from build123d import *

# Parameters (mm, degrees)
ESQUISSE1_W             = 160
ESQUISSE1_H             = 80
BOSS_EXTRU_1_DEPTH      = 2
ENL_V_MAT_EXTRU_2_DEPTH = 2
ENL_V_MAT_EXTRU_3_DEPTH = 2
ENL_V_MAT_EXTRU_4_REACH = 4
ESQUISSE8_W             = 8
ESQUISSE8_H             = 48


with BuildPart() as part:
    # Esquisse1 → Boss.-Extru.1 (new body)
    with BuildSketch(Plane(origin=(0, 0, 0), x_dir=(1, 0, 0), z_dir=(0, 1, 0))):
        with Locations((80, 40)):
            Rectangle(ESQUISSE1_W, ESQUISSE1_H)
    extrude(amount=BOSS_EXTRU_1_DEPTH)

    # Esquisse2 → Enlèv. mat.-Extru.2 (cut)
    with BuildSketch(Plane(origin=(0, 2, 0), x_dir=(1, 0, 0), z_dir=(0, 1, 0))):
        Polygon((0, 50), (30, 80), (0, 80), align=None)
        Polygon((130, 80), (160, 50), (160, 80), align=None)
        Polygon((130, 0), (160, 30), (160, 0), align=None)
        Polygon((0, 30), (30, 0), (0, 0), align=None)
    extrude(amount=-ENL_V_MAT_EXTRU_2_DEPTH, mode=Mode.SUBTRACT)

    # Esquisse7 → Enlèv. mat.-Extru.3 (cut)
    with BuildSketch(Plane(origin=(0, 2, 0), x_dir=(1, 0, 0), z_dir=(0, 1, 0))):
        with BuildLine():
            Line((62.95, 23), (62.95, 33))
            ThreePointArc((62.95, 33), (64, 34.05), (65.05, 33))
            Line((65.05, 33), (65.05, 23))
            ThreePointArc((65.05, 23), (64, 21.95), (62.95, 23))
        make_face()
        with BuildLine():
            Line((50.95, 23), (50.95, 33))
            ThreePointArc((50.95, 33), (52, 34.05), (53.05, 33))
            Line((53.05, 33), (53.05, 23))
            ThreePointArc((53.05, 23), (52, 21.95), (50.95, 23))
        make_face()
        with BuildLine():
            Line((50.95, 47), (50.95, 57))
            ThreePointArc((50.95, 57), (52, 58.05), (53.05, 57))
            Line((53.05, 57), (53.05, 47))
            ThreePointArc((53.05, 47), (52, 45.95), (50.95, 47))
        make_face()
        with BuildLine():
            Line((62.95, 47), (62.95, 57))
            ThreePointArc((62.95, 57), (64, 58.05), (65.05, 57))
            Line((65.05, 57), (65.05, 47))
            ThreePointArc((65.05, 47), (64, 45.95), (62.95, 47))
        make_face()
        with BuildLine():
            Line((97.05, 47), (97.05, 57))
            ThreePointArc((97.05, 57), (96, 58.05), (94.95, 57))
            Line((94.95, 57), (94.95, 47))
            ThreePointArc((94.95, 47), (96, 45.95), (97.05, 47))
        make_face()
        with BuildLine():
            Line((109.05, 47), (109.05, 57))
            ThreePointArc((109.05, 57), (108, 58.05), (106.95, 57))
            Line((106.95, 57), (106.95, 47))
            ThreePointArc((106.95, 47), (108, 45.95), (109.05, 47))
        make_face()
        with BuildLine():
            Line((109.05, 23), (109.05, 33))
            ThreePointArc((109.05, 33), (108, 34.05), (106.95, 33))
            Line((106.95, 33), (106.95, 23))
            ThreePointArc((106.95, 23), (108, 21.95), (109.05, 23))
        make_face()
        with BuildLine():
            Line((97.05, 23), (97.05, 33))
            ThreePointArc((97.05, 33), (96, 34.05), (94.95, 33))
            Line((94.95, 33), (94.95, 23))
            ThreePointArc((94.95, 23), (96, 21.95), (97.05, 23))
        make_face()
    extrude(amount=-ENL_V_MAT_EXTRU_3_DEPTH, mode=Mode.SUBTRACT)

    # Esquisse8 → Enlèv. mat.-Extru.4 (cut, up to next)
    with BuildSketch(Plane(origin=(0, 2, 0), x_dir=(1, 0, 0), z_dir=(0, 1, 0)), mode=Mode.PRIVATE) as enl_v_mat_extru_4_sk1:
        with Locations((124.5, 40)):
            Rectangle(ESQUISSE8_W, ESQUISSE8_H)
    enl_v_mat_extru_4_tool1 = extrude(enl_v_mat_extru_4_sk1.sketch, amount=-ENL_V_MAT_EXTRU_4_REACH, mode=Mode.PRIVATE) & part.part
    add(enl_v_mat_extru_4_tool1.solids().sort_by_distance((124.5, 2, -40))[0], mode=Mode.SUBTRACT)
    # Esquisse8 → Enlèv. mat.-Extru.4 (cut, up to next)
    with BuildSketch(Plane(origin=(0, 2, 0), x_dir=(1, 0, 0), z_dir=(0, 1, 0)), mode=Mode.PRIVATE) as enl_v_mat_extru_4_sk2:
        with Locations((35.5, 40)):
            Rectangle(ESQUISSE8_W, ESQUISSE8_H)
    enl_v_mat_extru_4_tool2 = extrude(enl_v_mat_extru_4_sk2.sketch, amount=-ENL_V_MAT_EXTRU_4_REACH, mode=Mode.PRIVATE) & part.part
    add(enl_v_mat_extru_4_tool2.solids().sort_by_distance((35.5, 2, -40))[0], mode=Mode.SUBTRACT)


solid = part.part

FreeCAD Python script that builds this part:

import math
import FreeCAD as App
import Part
import Sketcher

V = App.Vector
Q = App.Units.Quantity

doc = App.newDocument("Part")
body = doc.addObject("PartDesign::Body", "Body")

sketch1 = body.newObject("Sketcher::SketchObject", "Sketch")
sketch1.AttachmentSupport = (doc.getObject("XZ_Plane"), [""])
sketch1.MapMode = "FlatFace"
sketch1.addGeometry(Part.LineSegment(V(0, -80, 0), V(0, 0, 0)), False)
sketch1.addGeometry(Part.LineSegment(V(0, 0, 0), V(160, 0, 0)), False)
sketch1.addGeometry(Part.LineSegment(V(160, 0, 0), V(160, -80, 0)), False)
sketch1.addGeometry(Part.LineSegment(V(160, -80, 0), V(0, -80, 0)), False)
sketch1.addConstraint(Sketcher.Constraint("Coincident", 0, 2, 1, 1))
sketch1.addConstraint(Sketcher.Constraint("Coincident", 1, 2, 2, 1))
sketch1.addConstraint(Sketcher.Constraint("Coincident", 2, 2, 3, 1))
sketch1.addConstraint(Sketcher.Constraint("Coincident", 3, 2, 0, 1))
sketch1.addConstraint(Sketcher.Constraint("Vertical", 0))
sketch1.addConstraint(Sketcher.Constraint("Horizontal", 1))
sketch1.addConstraint(Sketcher.Constraint("Vertical", 2))
sketch1.addConstraint(Sketcher.Constraint("Horizontal", 3))
sketch1.addConstraint(Sketcher.Constraint("Coincident", 0, 2, -1, 1))
sketch1.addConstraint(Sketcher.Constraint("DistanceX", 1, 1, 1, 2, Q("160 mm")))
sketch1.addConstraint(Sketcher.Constraint("DistanceY", 0, 1, 0, 2, Q("80 mm")))
pad1 = body.newObject("PartDesign::Pad", "Pad")
pad1.Profile = sketch1
pad1.Length = 2
pad1.Reversed = True

sketch2 = body.newObject("Sketcher::SketchObject", "Sketch001")
sketch2.AttachmentSupport = (doc.getObject("XZ_Plane"), [""])
sketch2.MapMode = "FlatFace"
sketch2.AttachmentOffset = App.Placement(V(0, 0, -2), App.Rotation())
sketch2.addGeometry(Part.LineSegment(V(0, -50, 0), V(30, -80, 0)), False)
sketch2.addGeometry(Part.LineSegment(V(30, -80, 0), V(0, -80, 0)), False)
sketch2.addGeometry(Part.LineSegment(V(0, -80, 0), V(0, -50, 0)), False)
sketch2.addGeometry(Part.LineSegment(V(130, -80, 0), V(160, -50, 0)), False)
sketch2.addGeometry(Part.LineSegment(V(160, -50, 0), V(160, -80, 0)), False)
sketch2.addGeometry(Part.LineSegment(V(160, -80, 0), V(130, -80, 0)), False)
sketch2.addGeometry(Part.LineSegment(V(160, -30, 0), V(130, 0, 0)), False)
sketch2.addGeometry(Part.LineSegment(V(130, 0, 0), V(160, 0, 0)), False)
sketch2.addGeometry(Part.LineSegment(V(160, 0, 0), V(160, -30, 0)), False)
sketch2.addGeometry(Part.LineSegment(V(30, 0, 0), V(0, -30, 0)), False)
sketch2.addGeometry(Part.LineSegment(V(0, -30, 0), V(0, 0, 0)), False)
sketch2.addGeometry(Part.LineSegment(V(0, 0, 0), V(30, 0, 0)), False)
sketch2.addConstraint(Sketcher.Constraint("Coincident", 0, 2, 1, 1))
sketch2.addConstraint(Sketcher.Constraint("Coincident", 1, 2, 2, 1))
sketch2.addConstraint(Sketcher.Constraint("Coincident", 2, 2, 0, 1))
sketch2.addConstraint(Sketcher.Constraint("Coincident", 3, 2, 4, 1))
sketch2.addConstraint(Sketcher.Constraint("Coincident", 4, 2, 5, 1))
sketch2.addConstraint(Sketcher.Constraint("Coincident", 5, 2, 3, 1))
sketch2.addConstraint(Sketcher.Constraint("Coincident", 6, 2, 7, 1))
sketch2.addConstraint(Sketcher.Constraint("Coincident", 7, 2, 8, 1))
sketch2.addConstraint(Sketcher.Constraint("Coincident", 8, 2, 6, 1))
sketch2.addConstraint(Sketcher.Constraint("Coincident", 9, 2, 10, 1))
sketch2.addConstraint(Sketcher.Constraint("Coincident", 10, 2, 11, 1))
sketch2.addConstraint(Sketcher.Constraint("Coincident", 11, 2, 9, 1))
sketch2.addConstraint(Sketcher.Constraint("Horizontal", 1))
sketch2.addConstraint(Sketcher.Constraint("Vertical", 2))
sketch2.addConstraint(Sketcher.Constraint("Vertical", 4))
sketch2.addConstraint(Sketcher.Constraint("Horizontal", 5))
sketch2.addConstraint(Sketcher.Constraint("Horizontal", 7))
sketch2.addConstraint(Sketcher.Constraint("Vertical", 8))
sketch2.addConstraint(Sketcher.Constraint("Vertical", 10))
sketch2.addConstraint(Sketcher.Constraint("Horizontal", 11))
sketch2.addConstraint(Sketcher.Constraint("Coincident", 10, 2, -1, 1))
sketch2.addConstraint(Sketcher.Constraint("PointOnObject", 1, 2, -2))
sketch2.addConstraint(Sketcher.Constraint("PointOnObject", 6, 2, -1))
sketch2.addConstraint(Sketcher.Constraint("Perpendicular", 0, 3))
sketch2.addConstraint(Sketcher.Constraint("Perpendicular", 3, 6))
sketch2.addConstraint(Sketcher.Constraint("Perpendicular", 6, 9))
sketch2.addConstraint(Sketcher.Constraint("Horizontal", 2, 2, 3, 2))
sketch2.addConstraint(Sketcher.Constraint("Horizontal", 1, 2, 4, 2))
sketch2.addConstraint(Sketcher.Constraint("Horizontal", 8, 2, 9, 2))
sketch2.addConstraint(Sketcher.Constraint("Vertical", 5, 2, 6, 2))
sketch2.addConstraint(Sketcher.Constraint("Vertical", 4, 2, 7, 2))
sketch2.addConstraint(Sketcher.Constraint("Vertical", 0, 2, 11, 2))
sketch2.addConstraint(Sketcher.Constraint("DistanceX", 1, 2, 1, 1, Q("30 mm")))
sketch2.addConstraint(Sketcher.Constraint("DistanceY", 0, 2, -1, 1, Q("80 mm")))
sketch2.addConstraint(Sketcher.Constraint("DistanceX", -1, 1, 3, 2, Q("160 mm")))
pocket1 = body.newObject("PartDesign::Pocket", "Pocket")
pocket1.Profile = sketch2
pocket1.Length = 2
pocket1.Reversed = True

sketch3 = body.newObject("Sketcher::SketchObject", "Sketch002")
sketch3.AttachmentSupport = (doc.getObject("XZ_Plane"), [""])
sketch3.MapMode = "FlatFace"
sketch3.AttachmentOffset = App.Placement(V(0, 0, -2), App.Rotation())
sketch3.addGeometry(Part.LineSegment(V(63, -33, 0), V(63, -23, 0)), False)
sketch3.addGeometry(Part.ArcOfCircle(Part.Circle(V(64, -23, 0), V(0, 0, 1), 1.1), math.radians(0), math.radians(180)), False)
sketch3.addGeometry(Part.LineSegment(V(65, -23, 0), V(65, -33, 0)), False)
sketch3.addGeometry(Part.ArcOfCircle(Part.Circle(V(64, -33, 0), V(0, 0, 1), 1.1), math.radians(180), math.radians(360)), False)
sketch3.addGeometry(Part.LineSegment(V(51, -33, 0), V(51, -23, 0)), False)
sketch3.addGeometry(Part.ArcOfCircle(Part.Circle(V(52, -23, 0), V(0, 0, 1), 1.1), math.radians(0), math.radians(180)), False)
sketch3.addGeometry(Part.LineSegment(V(53, -23, 0), V(53, -33, 0)), False)
sketch3.addGeometry(Part.ArcOfCircle(Part.Circle(V(52, -33, 0), V(0, 0, 1), 1.1), math.radians(180), math.radians(360)), False)
sketch3.addGeometry(Part.LineSegment(V(51, -57, 0), V(51, -47, 0)), False)
sketch3.addGeometry(Part.ArcOfCircle(Part.Circle(V(52, -47, 0), V(0, 0, 1), 1.1), math.radians(0), math.radians(180)), False)
sketch3.addGeometry(Part.LineSegment(V(53, -47, 0), V(53, -57, 0)), False)
sketch3.addGeometry(Part.ArcOfCircle(Part.Circle(V(52, -57, 0), V(0, 0, 1), 1.1), math.radians(180), math.radians(360)), False)
sketch3.addGeometry(Part.LineSegment(V(63, -57, 0), V(63, -47, 0)), False)
sketch3.addGeometry(Part.ArcOfCircle(Part.Circle(V(64, -47, 0), V(0, 0, 1), 1.1), math.radians(0), math.radians(180)), False)
sketch3.addGeometry(Part.LineSegment(V(65, -47, 0), V(65, -57, 0)), False)
sketch3.addGeometry(Part.ArcOfCircle(Part.Circle(V(64, -57, 0), V(0, 0, 1), 1.1), math.radians(180), math.radians(360)), False)
sketch3.addGeometry(Part.LineSegment(V(97, -47, 0), V(97, -57, 0)), False)
sketch3.addGeometry(Part.ArcOfCircle(Part.Circle(V(96, -57, 0), V(0, 0, 1), 1.1), math.radians(180), math.radians(360)), False)
sketch3.addGeometry(Part.LineSegment(V(95, -57, 0), V(95, -47, 0)), False)
sketch3.addGeometry(Part.ArcOfCircle(Part.Circle(V(96, -47, 0), V(0, 0, 1), 1.1), math.radians(0), math.radians(180)), False)
sketch3.addGeometry(Part.LineSegment(V(109, -47, 0), V(109, -57, 0)), False)
sketch3.addGeometry(Part.ArcOfCircle(Part.Circle(V(108, -57, 0), V(0, 0, 1), 1.1), math.radians(180), math.radians(360)), False)
sketch3.addGeometry(Part.LineSegment(V(107, -57, 0), V(107, -47, 0)), False)
sketch3.addGeometry(Part.ArcOfCircle(Part.Circle(V(108, -47, 0), V(0, 0, 1), 1.1), math.radians(0), math.radians(180)), False)
sketch3.addGeometry(Part.LineSegment(V(109, -23, 0), V(109, -33, 0)), False)
sketch3.addGeometry(Part.ArcOfCircle(Part.Circle(V(108, -33, 0), V(0, 0, 1), 1.1), math.radians(180), math.radians(360)), False)
sketch3.addGeometry(Part.LineSegment(V(107, -33, 0), V(107, -23, 0)), False)
sketch3.addGeometry(Part.ArcOfCircle(Part.Circle(V(108, -23, 0), V(0, 0, 1), 1.1), math.radians(0), math.radians(180)), False)
sketch3.addGeometry(Part.LineSegment(V(97, -23, 0), V(97, -33, 0)), False)
sketch3.addGeometry(Part.ArcOfCircle(Part.Circle(V(96, -33, 0), V(0, 0, 1), 1.1), math.radians(180), math.radians(360)), False)
sketch3.addGeometry(Part.LineSegment(V(95, -33, 0), V(95, -23, 0)), False)
sketch3.addGeometry(Part.ArcOfCircle(Part.Circle(V(96, -23, 0), V(0, 0, 1), 1.1), math.radians(0), math.radians(180)), False)
sketch3.addConstraint(Sketcher.Constraint("Tangent", 0, 2, 1, 2))
sketch3.addConstraint(Sketcher.Constraint("Tangent", 1, 1, 2, 1))
sketch3.addConstraint(Sketcher.Constraint("Tangent", 2, 2, 3, 2))
sketch3.addConstraint(Sketcher.Constraint("Tangent", 3, 1, 0, 1))
sketch3.addConstraint(Sketcher.Constraint("Tangent", 4, 2, 5, 2))
sketch3.addConstraint(Sketcher.Constraint("Tangent", 5, 1, 6, 1))
sketch3.addConstraint(Sketcher.Constraint("Tangent", 6, 2, 7, 2))
sketch3.addConstraint(Sketcher.Constraint("Tangent", 7, 1, 4, 1))
sketch3.addConstraint(Sketcher.Constraint("Tangent", 8, 2, 9, 2))
sketch3.addConstraint(Sketcher.Constraint("Tangent", 9, 1, 10, 1))
sketch3.addConstraint(Sketcher.Constraint("Tangent", 10, 2, 11, 2))
sketch3.addConstraint(Sketcher.Constraint("Tangent", 11, 1, 8, 1))
sketch3.addConstraint(Sketcher.Constraint("Tangent", 12, 2, 13, 2))
sketch3.addConstraint(Sketcher.Constraint("Tangent", 13, 1, 14, 1))
sketch3.addConstraint(Sketcher.Constraint("Tangent", 14, 2, 15, 2))
sketch3.addConstraint(Sketcher.Constraint("Tangent", 15, 1, 12, 1))
sketch3.addConstraint(Sketcher.Constraint("Tangent", 16, 2, 17, 2))
sketch3.addConstraint(Sketcher.Constraint("Tangent", 17, 1, 18, 1))
sketch3.addConstraint(Sketcher.Constraint("Tangent", 18, 2, 19, 2))
sketch3.addConstraint(Sketcher.Constraint("Tangent", 19, 1, 16, 1))
sketch3.addConstraint(Sketcher.Constraint("Tangent", 20, 2, 21, 2))
sketch3.addConstraint(Sketcher.Constraint("Tangent", 21, 1, 22, 1))
sketch3.addConstraint(Sketcher.Constraint("Tangent", 22, 2, 23, 2))
sketch3.addConstraint(Sketcher.Constraint("Tangent", 23, 1, 20, 1))
sketch3.addConstraint(Sketcher.Constraint("Tangent", 24, 2, 25, 2))
sketch3.addConstraint(Sketcher.Constraint("Tangent", 25, 1, 26, 1))
sketch3.addConstraint(Sketcher.Constraint("Tangent", 26, 2, 27, 2))
sketch3.addConstraint(Sketcher.Constraint("Tangent", 27, 1, 24, 1))
sketch3.addConstraint(Sketcher.Constraint("Tangent", 28, 2, 29, 2))
sketch3.addConstraint(Sketcher.Constraint("Tangent", 29, 1, 30, 1))
sketch3.addConstraint(Sketcher.Constraint("Tangent", 30, 2, 31, 2))
sketch3.addConstraint(Sketcher.Constraint("Tangent", 31, 1, 28, 1))
sketch3.addConstraint(Sketcher.Constraint("Vertical", 0))
sketch3.addConstraint(Sketcher.Constraint("Vertical", 2))
sketch3.addConstraint(Sketcher.Constraint("Vertical", 4))
sketch3.addConstraint(Sketcher.Constraint("Vertical", 6))
sketch3.addConstraint(Sketcher.Constraint("Vertical", 8))
sketch3.addConstraint(Sketcher.Constraint("Vertical", 10))
sketch3.addConstraint(Sketcher.Constraint("Vertical", 12))
sketch3.addConstraint(Sketcher.Constraint("Vertical", 14))
sketch3.addConstraint(Sketcher.Constraint("Vertical", 16))
sketch3.addConstraint(Sketcher.Constraint("Vertical", 18))
sketch3.addConstraint(Sketcher.Constraint("Vertical", 20))
sketch3.addConstraint(Sketcher.Constraint("Vertical", 22))
sketch3.addConstraint(Sketcher.Constraint("Vertical", 24))
sketch3.addConstraint(Sketcher.Constraint("Vertical", 26))
sketch3.addConstraint(Sketcher.Constraint("Vertical", 28))
sketch3.addConstraint(Sketcher.Constraint("Vertical", 30))
sketch3.addConstraint(Sketcher.Constraint("Equal", 3, 5))
sketch3.addConstraint(Sketcher.Constraint("Equal", 7, 9))
sketch3.addConstraint(Sketcher.Constraint("Equal", 11, 13))
sketch3.addConstraint(Sketcher.Constraint("Equal", 15, 17))
sketch3.addConstraint(Sketcher.Constraint("Equal", 19, 21))
sketch3.addConstraint(Sketcher.Constraint("Equal", 23, 25))
sketch3.addConstraint(Sketcher.Constraint("Equal", 27, 29))
sketch3.addConstraint(Sketcher.Constraint("Horizontal", 1, 3, 5, 3))
sketch3.addConstraint(Sketcher.Constraint("Horizontal", 3, 3, 7, 3))
sketch3.addConstraint(Sketcher.Constraint("Horizontal", 9, 3, 13, 3))
sketch3.addConstraint(Sketcher.Constraint("Horizontal", 11, 3, 15, 3))
sketch3.addConstraint(Sketcher.Constraint("Horizontal", 15, 3, 17, 3))
sketch3.addConstraint(Sketcher.Constraint("Horizontal", 13, 3, 19, 3))
sketch3.addConstraint(Sketcher.Constraint("Horizontal", 17, 3, 21, 3))
sketch3.addConstraint(Sketcher.Constraint("Horizontal", 19, 3, 23, 3))
sketch3.addConstraint(Sketcher.Constraint("Horizontal", 7, 3, 25, 3))
sketch3.addConstraint(Sketcher.Constraint("Horizontal", 5, 3, 27, 3))
sketch3.addConstraint(Sketcher.Constraint("Horizontal", 25, 3, 29, 3))
sketch3.addConstraint(Sketcher.Constraint("Horizontal", 27, 3, 31, 3))
sketch3.addConstraint(Sketcher.Constraint("Vertical", 7, 3, 9, 3))
sketch3.addConstraint(Sketcher.Constraint("Vertical", 3, 3, 13, 3))
sketch3.addConstraint(Sketcher.Constraint("Vertical", 23, 3, 25, 3))
sketch3.addConstraint(Sketcher.Constraint("Vertical", 19, 3, 29, 3))
sketch3.addConstraint(Sketcher.Constraint("Equal", 6, 8))
sketch3.addConstraint(Sketcher.Constraint("DistanceY", 0, 1, 0, 2, Q("10 mm")))
sketch3.addConstraint(Sketcher.Constraint("Radius", 1, Q("1.05 mm")))
sketch3.addConstraint(Sketcher.Constraint("DistanceX", -1, 1, 1, 3, Q("64 mm")))
sketch3.addConstraint(Sketcher.Constraint("DistanceY", 1, 3, -1, 1, Q("23 mm")))
sketch3.addConstraint(Sketcher.Constraint("DistanceX", -1, 1, 5, 3, Q("52 mm")))
sketch3.addConstraint(Sketcher.Constraint("DistanceY", 9, 3, -1, 1, Q("47 mm")))
sketch3.addConstraint(Sketcher.Constraint("DistanceX", -1, 1, 17, 3, Q("96 mm")))
sketch3.addConstraint(Sketcher.Constraint("DistanceX", -1, 1, 21, 3, Q("108 mm")))
pocket2 = body.newObject("PartDesign::Pocket", "Pocket001")
pocket2.Profile = sketch3
pocket2.Length = 2
pocket2.Reversed = True

sketch4 = body.newObject("Sketcher::SketchObject", "Sketch003")
sketch4.AttachmentSupport = (doc.getObject("XZ_Plane"), [""])
sketch4.MapMode = "FlatFace"
sketch4.AttachmentOffset = App.Placement(V(0, 0, -2), App.Rotation())
sketch4.addGeometry(Part.LineSegment(V(120, -64, 0), V(120, -16, 0)), False)
sketch4.addGeometry(Part.LineSegment(V(120, -16, 0), V(128, -16, 0)), False)
sketch4.addGeometry(Part.LineSegment(V(128, -16, 0), V(128, -64, 0)), False)
sketch4.addGeometry(Part.LineSegment(V(128, -64, 0), V(120, -64, 0)), False)
sketch4.addConstraint(Sketcher.Constraint("Coincident", 0, 2, 1, 1))
sketch4.addConstraint(Sketcher.Constraint("Coincident", 1, 2, 2, 1))
sketch4.addConstraint(Sketcher.Constraint("Coincident", 2, 2, 3, 1))
sketch4.addConstraint(Sketcher.Constraint("Coincident", 3, 2, 0, 1))
sketch4.addConstraint(Sketcher.Constraint("Vertical", 0))
sketch4.addConstraint(Sketcher.Constraint("Horizontal", 1))
sketch4.addConstraint(Sketcher.Constraint("Vertical", 2))
sketch4.addConstraint(Sketcher.Constraint("Horizontal", 3))
sketch4.addConstraint(Sketcher.Constraint("DistanceX", 1, 1, 1, 2, Q("8 mm")))
sketch4.addConstraint(Sketcher.Constraint("DistanceY", 0, 1, 0, 2, Q("48 mm")))
sketch4.addConstraint(Sketcher.Constraint("DistanceY", 0, 2, -1, 1, Q("16 mm")))
sketch4.addConstraint(Sketcher.Constraint("DistanceX", -1, 1, 0, 2, Q("120.5 mm")))
pocket3 = body.newObject("PartDesign::Pocket", "Pocket002")
pocket3.Profile = sketch4
pocket3.Type = "UpToFirst"
pocket3.Reversed = True

sketch5 = body.newObject("Sketcher::SketchObject", "Sketch004")
sketch5.AttachmentSupport = (doc.getObject("XZ_Plane"), [""])
sketch5.MapMode = "FlatFace"
sketch5.AttachmentOffset = App.Placement(V(0, 0, -2), App.Rotation())
sketch5.addGeometry(Part.LineSegment(V(32, -64, 0), V(32, -16, 0)), False)
sketch5.addGeometry(Part.LineSegment(V(32, -16, 0), V(40, -16, 0)), False)
sketch5.addGeometry(Part.LineSegment(V(40, -16, 0), V(40, -64, 0)), False)
sketch5.addGeometry(Part.LineSegment(V(40, -64, 0), V(32, -64, 0)), False)
sketch5.addConstraint(Sketcher.Constraint("Coincident", 0, 2, 1, 1))
sketch5.addConstraint(Sketcher.Constraint("Coincident", 1, 2, 2, 1))
sketch5.addConstraint(Sketcher.Constraint("Coincident", 2, 2, 3, 1))
sketch5.addConstraint(Sketcher.Constraint("Coincident", 3, 2, 0, 1))
sketch5.addConstraint(Sketcher.Constraint("Vertical", 0))
sketch5.addConstraint(Sketcher.Constraint("Horizontal", 1))
sketch5.addConstraint(Sketcher.Constraint("Vertical", 2))
sketch5.addConstraint(Sketcher.Constraint("Horizontal", 3))
sketch5.addConstraint(Sketcher.Constraint("DistanceX", 1, 1, 1, 2, Q("8 mm")))
sketch5.addConstraint(Sketcher.Constraint("DistanceY", 0, 1, 0, 2, Q("48 mm")))
sketch5.addConstraint(Sketcher.Constraint("DistanceY", 0, 2, -1, 1, Q("16 mm")))
sketch5.addConstraint(Sketcher.Constraint("DistanceX", -1, 1, 0, 2, Q("31.5 mm")))
pocket4 = body.newObject("PartDesign::Pocket", "Pocket003")
pocket4.Profile = sketch5
pocket4.Type = "UpToFirst"
pocket4.Reversed = True

doc.recompute()
